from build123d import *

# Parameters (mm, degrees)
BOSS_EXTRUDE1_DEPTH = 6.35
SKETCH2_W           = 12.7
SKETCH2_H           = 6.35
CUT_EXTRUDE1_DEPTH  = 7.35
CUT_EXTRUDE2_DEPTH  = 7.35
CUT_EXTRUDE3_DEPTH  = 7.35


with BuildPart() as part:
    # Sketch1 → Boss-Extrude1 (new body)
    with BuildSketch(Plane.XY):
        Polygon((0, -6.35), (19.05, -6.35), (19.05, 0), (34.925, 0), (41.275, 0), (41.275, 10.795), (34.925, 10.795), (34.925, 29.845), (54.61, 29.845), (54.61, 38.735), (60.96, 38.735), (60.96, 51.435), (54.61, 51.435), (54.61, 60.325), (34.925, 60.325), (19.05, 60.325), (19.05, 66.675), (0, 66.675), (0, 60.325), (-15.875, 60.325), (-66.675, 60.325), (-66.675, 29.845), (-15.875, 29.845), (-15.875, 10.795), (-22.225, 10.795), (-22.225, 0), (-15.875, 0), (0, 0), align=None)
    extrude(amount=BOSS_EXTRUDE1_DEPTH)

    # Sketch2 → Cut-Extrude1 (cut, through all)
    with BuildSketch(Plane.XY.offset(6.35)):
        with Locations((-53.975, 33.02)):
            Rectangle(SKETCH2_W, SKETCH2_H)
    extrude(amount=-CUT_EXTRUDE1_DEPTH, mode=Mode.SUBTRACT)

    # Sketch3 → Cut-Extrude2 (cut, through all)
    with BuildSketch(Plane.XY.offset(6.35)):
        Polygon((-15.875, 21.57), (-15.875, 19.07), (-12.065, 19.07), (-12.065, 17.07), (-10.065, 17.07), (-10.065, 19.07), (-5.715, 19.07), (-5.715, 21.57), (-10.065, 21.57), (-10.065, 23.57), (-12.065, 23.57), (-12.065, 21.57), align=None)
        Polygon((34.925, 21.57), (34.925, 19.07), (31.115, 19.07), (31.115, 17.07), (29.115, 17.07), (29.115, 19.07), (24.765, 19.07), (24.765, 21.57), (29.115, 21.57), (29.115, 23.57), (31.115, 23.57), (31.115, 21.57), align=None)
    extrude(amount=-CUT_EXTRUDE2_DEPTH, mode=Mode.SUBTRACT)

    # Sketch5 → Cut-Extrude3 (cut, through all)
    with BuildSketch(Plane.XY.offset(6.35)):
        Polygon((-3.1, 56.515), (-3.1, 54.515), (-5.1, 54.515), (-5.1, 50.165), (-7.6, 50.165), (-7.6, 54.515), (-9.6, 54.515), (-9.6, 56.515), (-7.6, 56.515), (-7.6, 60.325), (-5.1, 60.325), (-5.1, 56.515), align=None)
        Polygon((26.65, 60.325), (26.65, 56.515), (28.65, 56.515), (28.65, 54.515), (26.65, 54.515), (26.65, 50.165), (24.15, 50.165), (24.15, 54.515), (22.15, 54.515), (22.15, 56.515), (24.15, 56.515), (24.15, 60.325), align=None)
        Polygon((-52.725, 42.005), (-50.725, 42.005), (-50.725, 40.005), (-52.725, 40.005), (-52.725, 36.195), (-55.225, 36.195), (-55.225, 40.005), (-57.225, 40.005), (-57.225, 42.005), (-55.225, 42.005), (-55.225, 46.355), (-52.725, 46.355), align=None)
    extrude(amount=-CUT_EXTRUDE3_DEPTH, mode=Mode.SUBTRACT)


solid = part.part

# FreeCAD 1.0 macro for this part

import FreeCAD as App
import Part
import Sketcher
Q = App.Units.Quantity


def add_polygon(sketch, points):
    """Adds a closed chain of lines whose ends are joined by coincident constraints."""
    first, n = sketch.GeometryCount, len(points)
    for a, b in zip(points, points[1:] + points[:1]):
        sketch.addGeometry(Part.LineSegment(App.Vector(*a, 0), App.Vector(*b, 0)), False)
    for i in range(n):
        sketch.addConstraint(Sketcher.Constraint("Coincident", first + i, 2, first + (i + 1) % n, 1))

doc = App.newDocument("Part")
body = doc.addObject("PartDesign::Body", "Body")

sketch1 = doc.addObject("Sketcher::SketchObject", "Sketch")
body.addObject(sketch1)
sketch1.AttachmentSupport = (doc.XY_Plane, [""])
sketch1.MapMode = "FlatFace"
add_polygon(sketch1, [(0, -6), (19, -6), (19, 0), (41, 0), (41, 11), (35, 11), (35, 30), (55, 30), (55, 39), (61, 39), (61, 51), (55, 51), (55, 60), (19, 60), (19, 67), (0, 67), (0, 60), (-67, 60), (-67, 30), (-16, 30), (-16, 11), (-22, 11), (-22, 0), (0, 0)])
sketch1.addConstraint([
    Sketcher.Constraint("Horizontal", 0),
    Sketcher.Constraint("Vertical", 1),
    Sketcher.Constraint("Horizontal", 2),
    Sketcher.Constraint("Vertical", 3),
    Sketcher.Constraint("Horizontal", 4),
    Sketcher.Constraint("Vertical", 5),
    Sketcher.Constraint("Horizontal", 6),
    Sketcher.Constraint("Vertical", 7),
    Sketcher.Constraint("Horizontal", 8),
    Sketcher.Constraint("Vertical", 9),
    Sketcher.Constraint("Horizontal", 10),
    Sketcher.Constraint("Vertical", 11),
    Sketcher.Constraint("Horizontal", 12),
    Sketcher.Constraint("Vertical", 13),
    Sketcher.Constraint("Horizontal", 14),
    Sketcher.Constraint("Vertical", 15),
    Sketcher.Constraint("Horizontal", 16),
    Sketcher.Constraint("Vertical", 17),
    Sketcher.Constraint("Horizontal", 18),
    Sketcher.Constraint("Vertical", 19),
    Sketcher.Constraint("Horizontal", 20),
    Sketcher.Constraint("Vertical", 21),
    Sketcher.Constraint("Horizontal", 22),
    Sketcher.Constraint("Vertical", 23),
    Sketcher.Constraint("Coincident", 22, 2, -1, 1),
    Sketcher.Constraint("PointOnObject", 1, 2, -1),
    Sketcher.Constraint("PointOnObject", 14, 2, -2),
    Sketcher.Constraint("Horizontal", 12, 2, 15, 2),
    Sketcher.Constraint("Horizontal", 6, 2, 17, 2),
    Sketcher.Constraint("Horizontal", 4, 2, 19, 2),
    Sketcher.Constraint("Vertical", 7, 2, 10, 2),
    Sketcher.Constraint("Vertical", 1, 2, 12, 2),
    Sketcher.Constraint("Equal", 4, 8),
    Sketcher.Constraint("Equal", 10, 20),
    Sketcher.Constraint("Equal", 2, 22),
    Sketcher.Constraint("Equal", 20, 1),
    Sketcher.Constraint("Equal", 14, 5),
    Sketcher.Constraint("Equal", 7, 11),
    Sketcher.Constraint("Equal", 1, 13),
    Sketcher.Constraint("DistanceX", 18, 1, 18, 2, Q("2 in")),
    Sketcher.Constraint("DistanceX", 12, 2, 12, 1, Q("1.4 in")),
    Sketcher.Constraint("DistanceY", 9, 1, 9, 2, Q("0.5 in")),
    Sketcher.Constraint("DistanceY", 17, 2, 17, 1, Q("1.2 in")),
    Sketcher.Constraint("DistanceX", 19, 2, 4, 2, Q("2 in")),
    Sketcher.Constraint("DistanceX", 0, 1, 0, 2, Q("0.75 in")),
    Sketcher.Constraint("DistanceX", 4, 2, 4, 1, Q("0.25 in")),
    Sketcher.Constraint("DistanceY", 3, 1, 3, 2, Q("0.425 in")),
])
pad1 = doc.addObject("PartDesign::Pad", "Pad")
body.addObject(pad1)
pad1.Profile = sketch1
pad1.Length = Q("0.25 in")

sketch2 = doc.addObject("Sketcher::SketchObject", "Sketch001")
body.addObject(sketch2)
sketch2.AttachmentSupport = (doc.XY_Plane, [""])
sketch2.MapMode = "FlatFace"
sketch2.AttachmentOffset = App.Placement(App.Vector(0, 0, 0.25 * 25.4), App.Rotation())
add_polygon(sketch2, [(-60, 36), (-60, 30), (-48, 30), (-48, 36)])
sketch2.addConstraint([
    Sketcher.Constraint("Vertical", 0),
    Sketcher.Constraint("Horizontal", 1),
    Sketcher.Constraint("Vertical", 2),
    Sketcher.Constraint("Horizontal", 3),
    Sketcher.Constraint("DistanceX", 1, 1, 1, 2, Q("0.5 in")),
    Sketcher.Constraint("DistanceY", 0, 2, 0, 1, Q("0.25 in")),
    Sketcher.Constraint("DistanceX", 0, 2, -1, 1, Q("2.375 in")),
    Sketcher.Constraint("DistanceY", -1, 1, 0, 2, Q("1.175 in")),
])
pocket1 = doc.addObject("PartDesign::Pocket", "Pocket")
body.addObject(pocket1)
pocket1.Profile = sketch2
pocket1.Type = "ThroughAll"

sketch3 = doc.addObject("Sketcher::SketchObject", "Sketch002")
body.addObject(sketch3)
sketch3.AttachmentSupport = (doc.XY_Plane, [""])
sketch3.MapMode = "FlatFace"
sketch3.AttachmentOffset = App.Placement(App.Vector(0, 0, 0.25 * 25.4), App.Rotation())
add_polygon(sketch3, [(-15.9, 21.6), (-15.9, 19.1), (-12.1, 19.1), (-12.1, 17.1), (-10.1, 17.1), (-10.1, 19.1), (-5.7, 19.1), (-5.7, 21.6), (-10.1, 21.6), (-10.1, 23.6), (-12.1, 23.6), (-12.1, 21.6)])
add_polygon(sketch3, [(34.9, 19.1), (34.9, 21.6), (31.1, 21.6), (31.1, 23.6), (29.1, 23.6), (29.1, 21.6), (24.8, 21.6), (24.8, 19.1), (29.1, 19.1), (29.1, 17.1), (31.1, 17.1), (31.1, 19.1)])
sketch3.addConstraint([
    Sketcher.Constraint("Vertical", 0),
    Sketcher.Constraint("Horizontal", 1),
    Sketcher.Constraint("Vertical", 2),
    Sketcher.Constraint("Horizontal", 3),
    Sketcher.Constraint("Vertical", 4),
    Sketcher.Constraint("Horizontal", 5),
    Sketcher.Constraint("Vertical", 6),
    Sketcher.Constraint("Horizontal", 7),
    Sketcher.Constraint("Vertical", 8),
    Sketcher.Constraint("Horizontal", 9),
    Sketcher.Constraint("Vertical", 10),
    Sketcher.Constraint("Horizontal", 11),
    Sketcher.Constraint("Vertical", 12),
    Sketcher.Constraint("Horizontal", 13),
    Sketcher.Constraint("Vertical", 14),
    Sketcher.Constraint("Horizontal", 15),
    Sketcher.Constraint("Vertical", 16),
    Sketcher.Constraint("Horizontal", 17),
    Sketcher.Constraint("Vertical", 18),
    Sketcher.Constraint("Horizontal", 19),
    Sketcher.Constraint("Vertical", 20),
    Sketcher.Constraint("Horizontal", 21),
    Sketcher.Constraint("Vertical", 22),
    Sketcher.Constraint("Horizontal", 23),
    Sketcher.Constraint("Horizontal", 1, 2, 4, 2),
    Sketcher.Constraint("Horizontal", 7, 2, 10, 2),
    Sketcher.Constraint("Horizontal", 11, 2, 12, 2),
    Sketcher.Constraint("Horizontal", 9, 2, 14, 2),
    Sketcher.Constraint("Horizontal", 13, 2, 16, 2),
    Sketcher.Constraint("Horizontal", 5, 2, 18, 2),
    Sketcher.Constraint("Horizontal", 3, 2, 20, 2),
    Sketcher.Constraint("Horizontal", 19, 2, 22, 2),
    Sketcher.Constraint("Vertical", 4, 2, 7, 2),
    Sketcher.Constraint("Vertical", 2, 2, 9, 2),
    Sketcher.Constraint("Vertical", 16, 2, 19, 2),
    Sketcher.Constraint("Vertical", 14, 2, 21, 2),
    Sketcher.Constraint("Equal", 11, 13),
    Sketcher.Constraint("Equal", 9, 15),
    Sketcher.Constraint("Equal", 7, 17),
    Sketcher.Constraint("Equal", 21, 2),
    Sketcher.Constraint("Equal", 4, 8),
    Sketcher.Constraint("DistanceX", 1, 1, 1, 2, Q("0.15 in")),
    Sketcher.Constraint("DistanceX", 0, 2, 5, 2, Q("0.4 in")),
    Sketcher.Constraint("DistanceX", 6, 2, 12, 2, Q("1.6 in")),
    Sketcher.Constraint("DistanceX", 0, 2, -1, 1, Q("0.625 in")),
    Sketcher.Constraint("DistanceX", 3, 1, 3, 2, 2.0),
    Sketcher.Constraint("DistanceY", 0, 2, 0, 1, 2.5),
    Sketcher.Constraint("DistanceY", -1, 1, 0, 2, 19.07),
])
pocket2 = doc.addObject("PartDesign::Pocket", "Pocket001")
body.addObject(pocket2)
pocket2.Profile = sketch3
pocket2.Type = "ThroughAll"

sketch4 = doc.addObject("Sketcher::SketchObject", "Sketch003")
body.addObject(sketch4)
sketch4.AttachmentSupport = (doc.XY_Plane, [""])
sketch4.MapMode = "FlatFace"
sketch4.AttachmentOffset = App.Placement(App.Vector(0, 0, 0.25 * 25.4), App.Rotation())
add_polygon(sketch4, [(-3.1, 54.5), (-3.1, 56.5), (-5.1, 56.5), (-5.1, 60.3), (-7.6, 60.3), (-7.6, 56.5), (-9.6, 56.5), (-9.6, 54.5), (-7.6, 54.5), (-7.6, 50.2), (-5.1, 50.2), (-5.1, 54.5)])
add_polygon(sketch4, [(26.6, 56.5), (26.6, 60.3), (24.1, 60.3), (24.1, 56.5), (22.1, 56.5), (22.1, 54.5), (24.1, 54.5), (24.1, 50.2), (26.6, 50.2), (26.6, 54.5), (28.6, 54.5), (28.6, 56.5)])
add_polygon(sketch4, [(-50.7, 42), (-52.7, 42), (-52.7, 46.4), (-55.2, 46.4), (-55.2, 42), (-57.2, 42), (-57.2, 40), (-55.2, 40), (-55.2, 36.2), (-52.7, 36.2), (-52.7, 40), (-50.7, 40)])
sketch4.addConstraint([
    Sketcher.Constraint("Vertical", 0),
    Sketcher.Constraint("Horizontal", 1),
    Sketcher.Constraint("Vertical", 2),
    Sketcher.Constraint("Horizontal", 3),
    Sketcher.Constraint("Vertical", 4),
    Sketcher.Constraint("Horizontal", 5),
    Sketcher.Constraint("Vertical", 6),
    Sketcher.Constraint("Horizontal", 7),
    Sketcher.Constraint("Vertical", 8),
    Sketcher.Constraint("Horizontal", 9),
    Sketcher.Constraint("Vertical", 10),
    Sketcher.Constraint("Horizontal", 11),
    Sketcher.Constraint("Vertical", 12),
    Sketcher.Constraint("Horizontal", 13),
    Sketcher.Constraint("Vertical", 14),
    Sketcher.Constraint("Horizontal", 15),
    Sketcher.Constraint("Vertical", 16),
    Sketcher.Constraint("Horizontal", 17),
    Sketcher.Constraint("Vertical", 18),
    Sketcher.Constraint("Horizontal", 19),
    Sketcher.Constraint("Vertical", 20),
    Sketcher.Constraint("Horizontal", 21),
    Sketcher.Constraint("Vertical", 22),
    Sketcher.Constraint("Horizontal", 23),
    Sketcher.Constraint("Horizontal", 24),
    Sketcher.Constraint("Vertical", 25),
    Sketcher.Constraint("Horizontal", 26),
    Sketcher.Constraint("Vertical", 27),
    Sketcher.Constraint("Horizontal", 28),
    Sketcher.Constraint("Vertical", 29),
    Sketcher.Constraint("Horizontal", 30),
    Sketcher.Constraint("Vertical", 31),
    Sketcher.Constraint("Horizontal", 32),
    Sketcher.Constraint("Vertical", 33),
    Sketcher.Constraint("Horizontal", 34),
    Sketcher.Constraint("Vertical", 35),
    Sketcher.Constraint("Horizontal", 1, 2, 4, 2),
    Sketcher.Constraint("Horizontal", 7, 2, 10, 2),
    Sketcher.Constraint("Horizontal", 3, 2, 12, 2),
    Sketcher.Constraint("Horizontal", 5, 2, 14, 2),
    Sketcher.Constraint("Horizontal", 11, 2, 16, 2),
    Sketcher.Constraint("Horizontal", 9, 2, 18, 2),
    Sketcher.Constraint("Horizontal", 17, 2, 20, 2),
    Sketcher.Constraint("Horizontal", 15, 2, 22, 2),
    Sketcher.Constraint("Horizontal", 24, 2, 27, 2),
    Sketcher.Constraint("Horizontal", 30, 2, 33, 2),
    Sketcher.Constraint("Vertical", 4, 2, 7, 2),
    Sketcher.Constraint("Vertical", 2, 2, 9, 2),
    Sketcher.Constraint("Vertical", 14, 2, 17, 2),
    Sketcher.Constraint("Vertical", 12, 2, 19, 2),
    Sketcher.Constraint("Vertical", 27, 2, 30, 2),
    Sketcher.Constraint("Vertical", 25, 2, 32, 2),
    Sketcher.Constraint("Equal", 1, 5),
    Sketcher.Constraint("Equal", 9, 13),
    Sketcher.Constraint("Equal", 11, 15),
    Sketcher.Constraint("Equal", 17, 21),
    Sketcher.Constraint("Equal", 23, 24),
    Sketcher.Constraint("Equal", 19, 26),
    Sketcher.Constraint("Equal", 24, 28),
    Sketcher.Constraint("Equal", 34, 0),
    Sketcher.Constraint("Equal", 20, 25),
    Sketcher.Constraint("Equal", 22, 29),
    Sketcher.Constraint("Equal", 14, 31),
    Sketcher.Constraint("DistanceY", 2, 1, 2, 2, Q("0.15 in")),
    Sketcher.Constraint("DistanceY", 18, 2, 13, 2, Q("0.4 in")),
    Sketcher.Constraint("DistanceY", 25, 2, 5, 2, Q("0.4 in")),
    Sketcher.Constraint("DistanceX", 2, 2, 12, 2, Q("1.25 in")),
    Sketcher.Constraint("DistanceY", -1, 1, 0, 2, Q("2.225 in")),
    Sketcher.Constraint("DistanceX", 26, 2, 8, 2, Q("1.875 in")),
    Sketcher.Constraint("DistanceX", 1, 2, 1, 1, 2.0),
    Sketcher.Constraint("DistanceX", 3, 2, 3, 1, 2.5),
    Sketcher.Constraint("DistanceX", 0, 2, -1, 1, 3.1),
])
pocket3 = doc.addObject("PartDesign::Pocket", "Pocket002")
body.addObject(pocket3)
pocket3.Profile = sketch4
pocket3.Type = "ThroughAll"

doc.recompute()
